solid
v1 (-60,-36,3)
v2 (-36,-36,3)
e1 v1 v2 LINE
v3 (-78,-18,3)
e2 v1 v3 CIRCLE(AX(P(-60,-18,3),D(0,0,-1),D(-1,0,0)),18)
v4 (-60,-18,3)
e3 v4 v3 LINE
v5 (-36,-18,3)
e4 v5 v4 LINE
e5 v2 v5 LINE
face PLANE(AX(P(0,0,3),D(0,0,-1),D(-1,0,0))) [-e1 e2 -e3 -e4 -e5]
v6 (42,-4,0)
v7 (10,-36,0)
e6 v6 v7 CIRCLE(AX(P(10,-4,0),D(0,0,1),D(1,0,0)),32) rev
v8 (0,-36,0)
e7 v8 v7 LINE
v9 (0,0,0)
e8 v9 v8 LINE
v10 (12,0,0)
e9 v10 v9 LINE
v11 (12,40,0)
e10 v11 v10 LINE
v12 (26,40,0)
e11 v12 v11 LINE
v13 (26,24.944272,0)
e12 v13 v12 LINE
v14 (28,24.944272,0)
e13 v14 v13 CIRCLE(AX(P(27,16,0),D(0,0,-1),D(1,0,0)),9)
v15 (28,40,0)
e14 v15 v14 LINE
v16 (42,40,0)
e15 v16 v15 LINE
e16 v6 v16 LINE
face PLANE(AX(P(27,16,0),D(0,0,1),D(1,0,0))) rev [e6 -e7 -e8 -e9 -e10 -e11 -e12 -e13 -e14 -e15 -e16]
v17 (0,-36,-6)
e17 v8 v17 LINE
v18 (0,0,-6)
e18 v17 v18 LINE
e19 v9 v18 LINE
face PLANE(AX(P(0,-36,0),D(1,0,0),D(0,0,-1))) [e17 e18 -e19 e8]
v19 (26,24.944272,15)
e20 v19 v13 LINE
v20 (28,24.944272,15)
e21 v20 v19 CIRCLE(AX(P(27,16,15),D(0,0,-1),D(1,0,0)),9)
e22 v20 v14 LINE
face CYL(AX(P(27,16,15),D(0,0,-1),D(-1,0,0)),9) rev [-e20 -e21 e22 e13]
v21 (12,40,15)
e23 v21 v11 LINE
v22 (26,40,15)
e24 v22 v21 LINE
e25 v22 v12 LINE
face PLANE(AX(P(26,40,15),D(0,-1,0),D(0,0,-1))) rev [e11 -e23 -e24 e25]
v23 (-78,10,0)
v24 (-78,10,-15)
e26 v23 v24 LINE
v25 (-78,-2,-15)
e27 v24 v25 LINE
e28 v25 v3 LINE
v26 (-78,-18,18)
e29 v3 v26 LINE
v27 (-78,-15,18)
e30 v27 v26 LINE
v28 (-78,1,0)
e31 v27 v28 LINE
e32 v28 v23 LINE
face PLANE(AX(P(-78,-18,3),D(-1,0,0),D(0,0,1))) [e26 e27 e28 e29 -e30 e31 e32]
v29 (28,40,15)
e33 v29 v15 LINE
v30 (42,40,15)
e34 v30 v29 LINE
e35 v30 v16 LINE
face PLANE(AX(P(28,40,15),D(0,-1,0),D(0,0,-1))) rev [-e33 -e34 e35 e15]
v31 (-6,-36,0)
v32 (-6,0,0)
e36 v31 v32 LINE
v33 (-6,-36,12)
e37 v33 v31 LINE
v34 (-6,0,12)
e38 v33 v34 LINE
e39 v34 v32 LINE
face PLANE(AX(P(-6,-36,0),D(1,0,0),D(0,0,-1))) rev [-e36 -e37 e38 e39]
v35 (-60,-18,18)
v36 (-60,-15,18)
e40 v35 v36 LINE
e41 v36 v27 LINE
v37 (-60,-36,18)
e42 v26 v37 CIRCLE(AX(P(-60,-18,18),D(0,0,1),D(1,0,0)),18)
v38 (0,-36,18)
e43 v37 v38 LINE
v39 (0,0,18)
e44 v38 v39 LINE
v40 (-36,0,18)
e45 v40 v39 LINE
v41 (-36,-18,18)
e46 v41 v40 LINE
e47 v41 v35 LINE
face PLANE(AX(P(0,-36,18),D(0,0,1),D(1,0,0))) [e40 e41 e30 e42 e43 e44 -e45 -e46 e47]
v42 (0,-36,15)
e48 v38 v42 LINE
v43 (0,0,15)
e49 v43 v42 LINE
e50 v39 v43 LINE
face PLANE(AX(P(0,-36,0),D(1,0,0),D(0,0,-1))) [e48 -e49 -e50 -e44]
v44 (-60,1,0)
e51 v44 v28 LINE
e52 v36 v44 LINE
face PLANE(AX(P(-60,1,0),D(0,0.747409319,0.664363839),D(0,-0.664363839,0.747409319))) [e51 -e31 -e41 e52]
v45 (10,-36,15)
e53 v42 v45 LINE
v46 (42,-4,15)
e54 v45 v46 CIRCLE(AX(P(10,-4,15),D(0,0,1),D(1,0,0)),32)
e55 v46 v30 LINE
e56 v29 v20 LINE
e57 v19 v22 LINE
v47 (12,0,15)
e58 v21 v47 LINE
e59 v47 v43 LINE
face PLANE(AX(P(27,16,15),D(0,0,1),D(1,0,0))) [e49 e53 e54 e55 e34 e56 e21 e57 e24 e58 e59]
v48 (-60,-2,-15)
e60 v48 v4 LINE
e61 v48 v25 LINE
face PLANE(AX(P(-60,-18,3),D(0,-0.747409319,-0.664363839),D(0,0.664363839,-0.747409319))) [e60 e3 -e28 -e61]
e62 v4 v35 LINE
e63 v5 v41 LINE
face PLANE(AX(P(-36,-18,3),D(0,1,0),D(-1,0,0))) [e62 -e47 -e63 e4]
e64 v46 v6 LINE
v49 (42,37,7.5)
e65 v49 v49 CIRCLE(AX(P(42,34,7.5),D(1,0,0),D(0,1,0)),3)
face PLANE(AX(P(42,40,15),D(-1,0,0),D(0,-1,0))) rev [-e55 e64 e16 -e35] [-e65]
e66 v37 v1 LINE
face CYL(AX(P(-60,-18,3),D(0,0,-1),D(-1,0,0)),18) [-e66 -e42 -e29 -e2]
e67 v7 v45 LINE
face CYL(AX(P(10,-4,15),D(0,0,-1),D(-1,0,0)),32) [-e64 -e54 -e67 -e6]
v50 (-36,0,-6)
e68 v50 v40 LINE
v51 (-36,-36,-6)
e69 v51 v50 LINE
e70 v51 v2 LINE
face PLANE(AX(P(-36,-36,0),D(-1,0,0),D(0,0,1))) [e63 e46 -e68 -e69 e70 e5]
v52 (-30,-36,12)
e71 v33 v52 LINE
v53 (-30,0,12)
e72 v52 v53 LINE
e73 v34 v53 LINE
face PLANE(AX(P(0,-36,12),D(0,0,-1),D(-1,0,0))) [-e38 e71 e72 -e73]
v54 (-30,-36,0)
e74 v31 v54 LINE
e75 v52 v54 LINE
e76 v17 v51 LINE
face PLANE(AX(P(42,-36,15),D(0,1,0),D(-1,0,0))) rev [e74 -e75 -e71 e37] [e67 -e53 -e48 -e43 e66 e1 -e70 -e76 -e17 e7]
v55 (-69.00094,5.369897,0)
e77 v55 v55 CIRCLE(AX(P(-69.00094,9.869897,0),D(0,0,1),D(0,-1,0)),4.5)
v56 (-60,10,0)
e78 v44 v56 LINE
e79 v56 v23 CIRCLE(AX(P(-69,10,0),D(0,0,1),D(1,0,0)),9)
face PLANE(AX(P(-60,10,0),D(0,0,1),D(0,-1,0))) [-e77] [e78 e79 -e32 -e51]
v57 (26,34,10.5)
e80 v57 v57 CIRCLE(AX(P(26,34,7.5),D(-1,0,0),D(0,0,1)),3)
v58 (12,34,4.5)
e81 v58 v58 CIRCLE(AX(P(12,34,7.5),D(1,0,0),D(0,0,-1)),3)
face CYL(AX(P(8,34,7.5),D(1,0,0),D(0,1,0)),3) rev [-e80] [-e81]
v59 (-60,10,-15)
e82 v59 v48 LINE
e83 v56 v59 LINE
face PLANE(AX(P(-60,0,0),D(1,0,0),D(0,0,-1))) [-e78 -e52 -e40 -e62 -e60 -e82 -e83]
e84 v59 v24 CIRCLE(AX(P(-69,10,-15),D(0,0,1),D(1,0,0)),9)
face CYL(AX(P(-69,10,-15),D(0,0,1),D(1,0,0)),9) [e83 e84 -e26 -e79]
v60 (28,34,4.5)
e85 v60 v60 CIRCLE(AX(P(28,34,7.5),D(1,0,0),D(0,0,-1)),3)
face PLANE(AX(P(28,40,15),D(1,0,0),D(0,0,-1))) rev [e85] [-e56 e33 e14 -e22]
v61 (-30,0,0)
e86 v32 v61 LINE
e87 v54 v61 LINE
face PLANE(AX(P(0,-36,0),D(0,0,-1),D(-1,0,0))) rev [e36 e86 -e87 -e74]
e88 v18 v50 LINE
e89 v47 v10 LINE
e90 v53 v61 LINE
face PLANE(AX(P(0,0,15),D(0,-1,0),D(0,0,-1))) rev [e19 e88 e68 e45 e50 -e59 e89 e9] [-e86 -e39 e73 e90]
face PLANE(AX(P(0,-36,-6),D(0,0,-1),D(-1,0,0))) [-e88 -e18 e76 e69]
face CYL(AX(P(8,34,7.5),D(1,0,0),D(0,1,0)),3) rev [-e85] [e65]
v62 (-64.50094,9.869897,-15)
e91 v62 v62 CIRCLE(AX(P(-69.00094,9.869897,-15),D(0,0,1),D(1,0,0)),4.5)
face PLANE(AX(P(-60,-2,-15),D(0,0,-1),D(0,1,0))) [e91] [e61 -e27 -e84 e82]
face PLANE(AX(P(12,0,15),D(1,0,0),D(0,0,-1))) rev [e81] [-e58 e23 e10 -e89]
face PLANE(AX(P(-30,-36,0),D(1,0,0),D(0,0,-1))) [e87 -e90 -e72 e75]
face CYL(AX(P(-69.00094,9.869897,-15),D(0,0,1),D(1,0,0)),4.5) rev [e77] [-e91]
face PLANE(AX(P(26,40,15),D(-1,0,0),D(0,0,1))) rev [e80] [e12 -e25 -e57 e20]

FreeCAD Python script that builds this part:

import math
import FreeCAD as App
import Part
import Sketcher


def edges_at(feature, points):
    """Names of the edges that pass closest to the given points."""
    edges = feature.Shape.Edges
    near = lambda p: min(range(len(edges)), key=lambda i: edges[i].distToShape(Part.Vertex(*p))[0])
    return sorted({f"Edge{near(p) + 1}" for p in points})


def add_polygon(sketch, points):
    """Adds a closed chain of lines whose ends are joined by coincident constraints."""
    first, n = sketch.GeometryCount, len(points)
    for a, b in zip(points, points[1:] + points[:1]):
        sketch.addGeometry(Part.LineSegment(App.Vector(*a, 0), App.Vector(*b, 0)), False)
    for i in range(n):
        sketch.addConstraint(Sketcher.Constraint("Coincident", first + i, 2, first + (i + 1) % n, 1))

doc = App.newDocument("Part")
params = doc.addObject("Spreadsheet::Sheet", "Params")
for row, (alias, value) in enumerate([
    ("sketch1_radius", "9 mm"),
    ("sketch1_width", "12 mm"),
    ("sketch1_width2", "42 mm"),
    ("sketch1_width3", "14 mm"),
    ("sketch1_height", "36 mm"),
    ("pad1_length", "15 mm"),
    ("sketch2_width", "36 mm"),
    ("sketch2_width2", "24 mm"),
    ("sketch2_height", "12 mm"),
    ("pad2_length", "36 mm"),
    ("sketch3_width", "42 mm"),
    ("sketch3_height", "18 mm"),
    ("pad3_length", "15 mm"),
    ("sketch4_diameter", "6 mm"),
    ("pocket1_length", "34 mm"),
    ("sketch5_width", "3 mm"),
    ("sketch5_width2", "9 mm"),
    ("sketch5_height", "15 mm"),
    ("pad4_length", "18 mm"),
    ("sketch6_diameter", "18 mm"),
    ("pad5_length", "15 mm"),
    ("sketch7_diameter", "9 mm"),
    ("fillet_radius", "18 mm"),
    ("fillet2_radius", "32 mm"),
], start=1):
    params.set(f"A{row}", alias)
    params.set(f"B{row}", "=" + value)
    params.setAlias(f"B{row}", alias)

body = doc.addObject("PartDesign::Body", "Body")

# Sketch on XY plane
sketch1 = body.newObject("Sketcher::SketchObject", "Sketch")
sketch1.AttachmentSupport = (doc.getObject("XY_Plane"), [""])
sketch1.MapMode = "FlatFace"
sketch1.addGeometry(Part.LineSegment(App.Vector(12, 0, 0), App.Vector(0, 0, 0)), False)
sketch1.addGeometry(Part.LineSegment(App.Vector(0, 0, 0), App.Vector(0, -36, 0)), False)
sketch1.addGeometry(Part.LineSegment(App.Vector(0, -36, 0), App.Vector(42, -36, 0)), False)
sketch1.addGeometry(Part.LineSegment(App.Vector(42, -36, 0), App.Vector(42, 40, 0)), False)
sketch1.addGeometry(Part.LineSegment(App.Vector(42, 40, 0), App.Vector(28, 40, 0)), False)
sketch1.addGeometry(Part.LineSegment(App.Vector(28, 40, 0), App.Vector(28, 24.9, 0)), False)
sketch1.addGeometry(Part.ArcOfCircle(Part.Circle(App.Vector(27, 16, 0), App.Vector(0, 0, 1), 9), math.radians(96), math.radians(444)), False)
sketch1.addGeometry(Part.LineSegment(App.Vector(26, 24.9, 0), App.Vector(26, 40, 0)), False)
sketch1.addGeometry(Part.LineSegment(App.Vector(26, 40, 0), App.Vector(12, 40, 0)), False)
sketch1.addGeometry(Part.LineSegment(App.Vector(12, 40, 0), App.Vector(12, 0, 0)), False)
sketch1.addConstraint(Sketcher.Constraint("Coincident", 0, 2, 1, 1))
sketch1.addConstraint(Sketcher.Constraint("Coincident", 1, 2, 2, 1))
sketch1.addConstraint(Sketcher.Constraint("Coincident", 2, 2, 3, 1))
sketch1.addConstraint(Sketcher.Constraint("Coincident", 3, 2, 4, 1))
sketch1.addConstraint(Sketcher.Constraint("Coincident", 4, 2, 5, 1))
sketch1.addConstraint(Sketcher.Constraint("Coincident", 5, 2, 6, 2))
sketch1.addConstraint(Sketcher.Constraint("Coincident", 6, 1, 7, 1))
sketch1.addConstraint(Sketcher.Constraint("Coincident", 7, 2, 8, 1))
sketch1.addConstraint(Sketcher.Constraint("Coincident", 8, 2, 9, 1))
sketch1.addConstraint(Sketcher.Constraint("Coincident", 9, 2, 0, 1))
sketch1.addConstraint(Sketcher.Constraint("Horizontal", 0))
sketch1.addConstraint(Sketcher.Constraint("Vertical", 1))
sketch1.addConstraint(Sketcher.Constraint("Horizontal", 2))
sketch1.addConstraint(Sketcher.Constraint("Vertical", 3))
sketch1.addConstraint(Sketcher.Constraint("Horizontal", 4))
sketch1.addConstraint(Sketcher.Constraint("Vertical", 5))
sketch1.addConstraint(Sketcher.Constraint("Vertical", 7))
sketch1.addConstraint(Sketcher.Constraint("Horizontal", 8))
sketch1.addConstraint(Sketcher.Constraint("Vertical", 9))
sketch1.addConstraint(Sketcher.Constraint("Coincident", 0, 2, -1, 1))
sketch1.addConstraint(Sketcher.Constraint("Horizontal", 5, 2, 6, 1))
sketch1.addConstraint(Sketcher.Constraint("Horizontal", 4, 2, 7, 2))
sketch1.addConstraint(Sketcher.Constraint("Equal", 4, 8))
sketch1.addConstraint(Sketcher.Constraint("Radius", 6, 9.0))
sketch1.addConstraint(Sketcher.Constraint("DistanceX", 0, 2, 0, 1, 12.0))
sketch1.addConstraint(Sketcher.Constraint("DistanceX", 2, 1, 2, 2, 42.0))
sketch1.addConstraint(Sketcher.Constraint("DistanceX", 4, 2, 4, 1, 14.0))
sketch1.addConstraint(Sketcher.Constraint("DistanceY", 1, 2, 1, 1, 36.0))
sketch1.addConstraint(Sketcher.Constraint("DistanceY", 3, 1, 3, 2, 76.0))
sketch1.addConstraint(Sketcher.Constraint("DistanceY", -1, 1, 6, 3, 16.0))
sketch1.setExpression("Constraints[23]", "Params.sketch1_radius")
sketch1.setExpression("Constraints[24]", "Params.sketch1_width")
sketch1.setExpression("Constraints[25]", "Params.sketch1_width2")
sketch1.setExpression("Constraints[26]", "Params.sketch1_width3")
sketch1.setExpression("Constraints[27]", "Params.sketch1_height")
pad1 = body.newObject("PartDesign::Pad", "Pad")
pad1.Profile = sketch1
pad1.setExpression("Length", "Params.pad1_length")

# Sketch on XZ plane
sketch2 = body.newObject("Sketcher::SketchObject", "Sketch001")
sketch2.AttachmentSupport = (doc.getObject("XZ_Plane"), [""])
sketch2.MapMode = "FlatFace"
add_polygon(sketch2, [(-36, 18), (0, 18), (0, -6), (-36, -6)])  # lines 0-3
add_polygon(sketch2, [(-6, 12), (-30, 12), (-30, 0), (-6, 0)])  # lines 4-7
sketch2.addConstraint(Sketcher.Constraint("Horizontal", 0))
sketch2.addConstraint(Sketcher.Constraint("Vertical", 1))
sketch2.addConstraint(Sketcher.Constraint("Horizontal", 2))
sketch2.addConstraint(Sketcher.Constraint("Vertical", 3))
sketch2.addConstraint(Sketcher.Constraint("Horizontal", 4))
sketch2.addConstraint(Sketcher.Constraint("Vertical", 5))
sketch2.addConstraint(Sketcher.Constraint("Horizontal", 6))
sketch2.addConstraint(Sketcher.Constraint("Vertical", 7))
sketch2.addConstraint(Sketcher.Constraint("PointOnObject", 0, 2, -2))
sketch2.addConstraint(Sketcher.Constraint("PointOnObject", 5, 2, -1))
sketch2.addConstraint(Sketcher.Constraint("Equal", 6, 1))
sketch2.addConstraint(Sketcher.Constraint("DistanceX", 0, 1, 0, 2, 36.0))
sketch2.addConstraint(Sketcher.Constraint("DistanceX", 4, 2, 4, 1, 24.0))
sketch2.addConstraint(Sketcher.Constraint("DistanceY", 5, 2, 5, 1, 12.0))
sketch2.addConstraint(Sketcher.Constraint("DistanceY", -1, 1, 0, 2, 18.0))
sketch2.addConstraint(Sketcher.Constraint("DistanceX", 4, 2, -1, 1, 30.0))
sketch2.setExpression("Constraints[19]", "Params.sketch2_width")
sketch2.setExpression("Constraints[20]", "Params.sketch2_width2")
sketch2.setExpression("Constraints[21]", "Params.sketch2_height")
pad2 = body.newObject("PartDesign::Pad", "Pad001")
pad2.Profile = sketch2
pad2.setExpression("Length", "Params.pad2_length")

# Sketch on XY plane
sketch3 = body.newObject("Sketcher::SketchObject", "Sketch002")
sketch3.AttachmentSupport = (doc.getObject("XY_Plane"), [""])
sketch3.MapMode = "FlatFace"
sketch3.AttachmentOffset = App.Placement(App.Vector(0, 0, 18), App.Rotation())
add_polygon(sketch3, [(-78, -18), (-78, -36), (-36, -36), (-36, -18)])  # lines 0-3
sketch3.addConstraint(Sketcher.Constraint("Vertical", 0))
sketch3.addConstraint(Sketcher.Constraint("Horizontal", 1))
sketch3.addConstraint(Sketcher.Constraint("Vertical", 2))
sketch3.addConstraint(Sketcher.Constraint("Horizontal", 3))
sketch3.addConstraint(Sketcher.Constraint("DistanceX", 1, 1, 1, 2, 42.0))
sketch3.addConstraint(Sketcher.Constraint("DistanceY", 0, 2, 0, 1, 18.0))
sketch3.addConstraint(Sketcher.Constraint("DistanceX", 0, 2, -1, 1, 78.0))
sketch3.addConstraint(Sketcher.Constraint("DistanceY", 0, 2, -1, 1, 36.0))
sketch3.setExpression("Constraints[8]", "Params.sketch3_width")
sketch3.setExpression("Constraints[9]", "Params.sketch3_height")
pad3 = body.newObject("PartDesign::Pad", "Pad002")
pad3.Profile = sketch3
pad3.setExpression("Length", "Params.pad3_length")
pad3.Reversed = True

# Sketch on YZ plane
sketch4 = body.newObject("Sketcher::SketchObject", "Sketch003")
sketch4.AttachmentSupport = (doc.getObject("YZ_Plane"), [""])
sketch4.MapMode = "FlatFace"
sketch4.AttachmentOffset = App.Placement(App.Vector(0, 0, 42), App.Rotation())
sketch4.addGeometry(Part.Circle(App.Vector(34, 7.5, 0), App.Vector(0, 0, 1), 3), False)
sketch4.addConstraint(Sketcher.Constraint("Diameter", 0, 6.0))
sketch4.addConstraint(Sketcher.Constraint("DistanceX", -1, 1, 0, 3, 34.0))
sketch4.addConstraint(Sketcher.Constraint("DistanceY", -1, 1, 0, 3, 7.5))
sketch4.setExpression("Constraints[0]", "Params.sketch4_diameter")
pocket1 = body.newObject("PartDesign::Pocket", "Pocket")
pocket1.Profile = sketch4
pocket1.setExpression("Length", "Params.pocket1_length")

# Sketch on YZ plane
sketch5 = body.newObject("Sketcher::SketchObject", "Sketch004")
sketch5.AttachmentSupport = (doc.getObject("YZ_Plane"), [""])
sketch5.MapMode = "FlatFace"
sketch5.AttachmentOffset = App.Placement(App.Vector(0, 0, -78), App.Rotation())
add_polygon(sketch5, [(-2, -15), (-18, 3), (-18, 18), (-15, 18), (1, 0), (10, 0), (10, -15)])  # lines 0-6
sketch5.addConstraint(Sketcher.Constraint("Vertical", 1))
sketch5.addConstraint(Sketcher.Constraint("Horizontal", 2))
sketch5.addConstraint(Sketcher.Constraint("Horizontal", 4))
sketch5.addConstraint(Sketcher.Constraint("Vertical", 5))
sketch5.addConstraint(Sketcher.Constraint("Horizontal", 6))
sketch5.addConstraint(Sketcher.Constraint("PointOnObject", 3, 2, -1))
sketch5.addConstraint(Sketcher.Constraint("Parallel", 0, 3))
sketch5.addConstraint(Sketcher.Constraint("Equal", 1, 5))
sketch5.addConstraint(Sketcher.Constraint("DistanceX", 2, 1, 2, 2, 3.0))
sketch5.addConstraint(Sketcher.Constraint("DistanceX", 4, 1, 4, 2, 9.0))
sketch5.addConstraint(Sketcher.Constraint("DistanceY", 1, 1, 1, 2, 15.0))
sketch5.addConstraint(Sketcher.Constraint("DistanceX", 0, 2, -1, 1, 18.0))
sketch5.addConstraint(Sketcher.Constraint("DistanceY", -1, 1, 0, 2, 3.0))
sketch5.addConstraint(Sketcher.Constraint("DistanceX", -1, 1, 3, 2, 1.0))
sketch5.setExpression("Constraints[15]", "Params.sketch5_width")
sketch5.setExpression("Constraints[16]", "Params.sketch5_width2")
sketch5.setExpression("Constraints[17]", "Params.sketch5_height")
pad4 = body.newObject("PartDesign::Pad", "Pad003")
pad4.Profile = sketch5
pad4.setExpression("Length", "Params.pad4_length")

# Sketch on XY plane
sketch6 = body.newObject("Sketcher::SketchObject", "Sketch005")
sketch6.AttachmentSupport = (doc.getObject("XY_Plane"), [""])
sketch6.MapMode = "FlatFace"
sketch6.addGeometry(Part.Circle(App.Vector(-69, 10, 0), App.Vector(0, 0, 1), 9), False)
sketch6.addConstraint(Sketcher.Constraint("Diameter", 0, 18.0))
sketch6.addConstraint(Sketcher.Constraint("DistanceX", 0, 3, -1, 1, 69.0))
sketch6.addConstraint(Sketcher.Constraint("DistanceY", -1, 1, 0, 3, 10.0))
sketch6.setExpression("Constraints[0]", "Params.sketch6_diameter")
pad5 = body.newObject("PartDesign::Pad", "Pad004")
pad5.Profile = sketch6
pad5.setExpression("Length", "Params.pad5_length")
pad5.Reversed = True

# Sketch on XY plane
sketch7 = body.newObject("Sketcher::SketchObject", "Sketch006")
sketch7.AttachmentSupport = (doc.getObject("XY_Plane"), [""])
sketch7.MapMode = "FlatFace"
sketch7.addGeometry(Part.Circle(App.Vector(-69, 9.9, 0), App.Vector(0, 0, 1), 4.5), False)
sketch7.addConstraint(Sketcher.Constraint("Diameter", 0, 9.0))
sketch7.addConstraint(Sketcher.Constraint("DistanceX", 0, 3, -1, 1, 69.00094))
sketch7.addConstraint(Sketcher.Constraint("DistanceY", -1, 1, 0, 3, 9.869897))
sketch7.setExpression("Constraints[0]", "Params.sketch7_diameter")
pocket2 = body.newObject("PartDesign::Pocket", "Pocket001")
pocket2.Profile = sketch7
pocket2.Type = "ThroughAll"
pocket2.Midplane = True
doc.recompute()

fillet = body.newObject("PartDesign::Fillet", "Fillet")
fillet.Base = (pocket2, edges_at(pocket2, [(-78, -36, 10.5)]))
fillet.setExpression("Radius", "Params.fillet_radius")
doc.recompute()

fillet2 = body.newObject("PartDesign::Fillet", "Fillet001")
fillet2.Base = (fillet, edges_at(fillet, [(42, -36, 7.5)]))
fillet2.setExpression("Radius", "Params.fillet2_radius")

doc.recompute()
